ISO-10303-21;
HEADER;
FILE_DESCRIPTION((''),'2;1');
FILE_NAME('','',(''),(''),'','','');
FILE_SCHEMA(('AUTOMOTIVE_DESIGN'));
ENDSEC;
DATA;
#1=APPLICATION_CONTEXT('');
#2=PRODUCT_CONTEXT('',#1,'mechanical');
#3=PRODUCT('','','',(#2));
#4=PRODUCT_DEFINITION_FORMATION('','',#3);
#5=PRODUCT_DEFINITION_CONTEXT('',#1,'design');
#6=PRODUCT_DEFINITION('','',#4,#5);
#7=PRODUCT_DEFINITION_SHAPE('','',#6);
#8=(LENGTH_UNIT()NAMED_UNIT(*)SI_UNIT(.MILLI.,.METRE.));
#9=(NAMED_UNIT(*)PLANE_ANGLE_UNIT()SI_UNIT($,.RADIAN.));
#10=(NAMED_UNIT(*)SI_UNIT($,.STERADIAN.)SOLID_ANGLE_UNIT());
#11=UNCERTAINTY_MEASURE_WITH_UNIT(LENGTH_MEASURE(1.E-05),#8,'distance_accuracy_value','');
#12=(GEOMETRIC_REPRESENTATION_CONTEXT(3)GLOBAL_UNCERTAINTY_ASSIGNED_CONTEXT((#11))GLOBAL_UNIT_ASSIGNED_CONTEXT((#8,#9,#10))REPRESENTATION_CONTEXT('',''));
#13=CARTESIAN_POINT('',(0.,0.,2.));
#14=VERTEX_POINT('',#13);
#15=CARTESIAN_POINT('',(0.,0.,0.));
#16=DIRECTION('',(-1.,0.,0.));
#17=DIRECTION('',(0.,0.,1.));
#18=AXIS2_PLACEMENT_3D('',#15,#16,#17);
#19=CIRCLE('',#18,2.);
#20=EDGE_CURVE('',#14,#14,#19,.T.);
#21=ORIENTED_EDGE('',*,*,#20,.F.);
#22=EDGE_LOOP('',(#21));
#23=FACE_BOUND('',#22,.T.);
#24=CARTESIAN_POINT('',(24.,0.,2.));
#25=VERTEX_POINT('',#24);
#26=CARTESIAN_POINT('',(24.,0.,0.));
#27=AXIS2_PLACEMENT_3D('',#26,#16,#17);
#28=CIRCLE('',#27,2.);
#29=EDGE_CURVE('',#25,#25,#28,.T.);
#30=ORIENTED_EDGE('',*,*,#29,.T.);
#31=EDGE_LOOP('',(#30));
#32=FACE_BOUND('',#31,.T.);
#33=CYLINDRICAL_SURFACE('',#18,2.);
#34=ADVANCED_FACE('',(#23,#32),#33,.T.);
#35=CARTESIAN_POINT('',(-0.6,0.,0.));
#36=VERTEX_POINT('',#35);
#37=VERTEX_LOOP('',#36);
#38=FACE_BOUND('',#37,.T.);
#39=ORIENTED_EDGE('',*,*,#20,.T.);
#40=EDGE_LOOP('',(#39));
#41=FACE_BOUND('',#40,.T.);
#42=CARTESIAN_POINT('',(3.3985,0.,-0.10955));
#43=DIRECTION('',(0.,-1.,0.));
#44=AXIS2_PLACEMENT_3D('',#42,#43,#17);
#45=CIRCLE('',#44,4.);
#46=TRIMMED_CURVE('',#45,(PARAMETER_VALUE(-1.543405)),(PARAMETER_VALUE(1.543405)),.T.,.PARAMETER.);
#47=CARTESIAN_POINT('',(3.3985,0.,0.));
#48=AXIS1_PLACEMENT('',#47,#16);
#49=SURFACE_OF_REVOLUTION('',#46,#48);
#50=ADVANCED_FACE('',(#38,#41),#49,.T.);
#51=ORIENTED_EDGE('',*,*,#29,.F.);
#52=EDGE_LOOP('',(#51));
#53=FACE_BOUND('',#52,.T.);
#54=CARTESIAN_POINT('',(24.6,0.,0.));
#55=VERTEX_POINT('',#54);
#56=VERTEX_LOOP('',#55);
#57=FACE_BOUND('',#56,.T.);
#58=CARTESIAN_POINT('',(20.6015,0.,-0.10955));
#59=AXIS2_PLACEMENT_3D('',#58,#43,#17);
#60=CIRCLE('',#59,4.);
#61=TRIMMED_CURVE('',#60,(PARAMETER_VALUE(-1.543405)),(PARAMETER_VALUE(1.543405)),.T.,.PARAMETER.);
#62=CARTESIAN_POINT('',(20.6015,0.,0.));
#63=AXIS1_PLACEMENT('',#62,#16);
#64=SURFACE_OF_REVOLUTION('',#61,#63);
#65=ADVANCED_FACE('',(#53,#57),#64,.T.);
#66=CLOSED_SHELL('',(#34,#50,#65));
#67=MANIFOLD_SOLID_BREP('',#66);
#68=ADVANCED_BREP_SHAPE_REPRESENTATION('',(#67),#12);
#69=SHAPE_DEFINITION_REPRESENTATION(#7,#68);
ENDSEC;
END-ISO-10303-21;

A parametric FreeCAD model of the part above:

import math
import FreeCAD as App
import Part
import Sketcher
Q = App.Units.Quantity

doc = App.newDocument("Part")
body = doc.addObject("PartDesign::Body", "Body")

# Sketch on XY plane
sketch1 = body.newObject("Sketcher::SketchObject", "Sketch")
sketch1.AttachmentSupport = (doc.getObject("XY_Plane"), [""])
sketch1.MapMode = "FlatFace"
sketch1.addGeometry([
    Part.LineSegment(App.Vector(24, 2, 0), App.Vector(0, 2, 0)),
    Part.ArcOfCircle(Part.Circle(App.Vector(3.3985, -0.10955, 0), App.Vector(0, 0, 1), 4), math.radians(148.170894), math.radians(178.430617)),
    Part.LineSegment(App.Vector(-0.6, 0, 0), App.Vector(24.6, 0, 0)),
    Part.ArcOfCircle(Part.Circle(App.Vector(20.6015, -0.10955, 0), App.Vector(0, 0, 1), 4), math.radians(1.569383), math.radians(31.829106)),
], False)
sketch1.addConstraint([
    Sketcher.Constraint("Coincident", 0, 2, 1, 1),
    Sketcher.Constraint("Coincident", 1, 2, 2, 1),
    Sketcher.Constraint("Coincident", 2, 2, 3, 1),
    Sketcher.Constraint("Coincident", 3, 2, 0, 1),
    Sketcher.Constraint("Horizontal", 0),
    Sketcher.Constraint("Horizontal", 2),
    Sketcher.Constraint("Equal", 1, 3),
    Sketcher.Constraint("PointOnObject", 0, 2, -2),
    Sketcher.Constraint("PointOnObject", 1, 2, -1),
    Sketcher.Constraint("Horizontal", 1, 3, 3, 3),
    Sketcher.Constraint("Radius", 1, Q("4 mm")),
    Sketcher.Constraint("DistanceX", 0, 2, 0, 1, Q("24 mm")),
    Sketcher.Constraint("DistanceX", 2, 1, 2, 2, Q("25.2 mm")),
    Sketcher.Constraint("DistanceY", -1, 1, 0, 2, Q("2 mm")),
])
revolution = body.newObject("PartDesign::Revolution", "Revolution")
revolution.Profile = sketch1
revolution.ReferenceAxis = (sketch1, ["H_Axis"])
revolution.Angle = 360

doc.recompute()
